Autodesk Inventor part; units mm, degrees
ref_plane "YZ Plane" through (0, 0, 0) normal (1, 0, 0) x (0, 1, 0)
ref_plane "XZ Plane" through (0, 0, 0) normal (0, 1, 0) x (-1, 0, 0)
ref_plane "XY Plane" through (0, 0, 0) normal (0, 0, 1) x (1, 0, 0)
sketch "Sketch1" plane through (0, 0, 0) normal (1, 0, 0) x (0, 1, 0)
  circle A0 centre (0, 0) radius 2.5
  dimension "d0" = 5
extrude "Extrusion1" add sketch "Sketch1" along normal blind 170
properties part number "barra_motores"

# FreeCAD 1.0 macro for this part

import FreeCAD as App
import Part
import Sketcher

V = App.Vector

doc = App.newDocument("Part")
params = doc.addObject("Spreadsheet::Sheet", "Params")
for row, (alias, value) in enumerate([
    ("sketch1_diameter", "5 mm"),
    ("pad1_length", "170 mm"),
], start=1):
    params.set(f"A{row}", alias)
    params.set(f"B{row}", "=" + value)
    params.setAlias(f"B{row}", alias)

body = doc.addObject("PartDesign::Body", "Body")

# Sketch on YZ plane
sketch1 = body.newObject("Sketcher::SketchObject", "Sketch")
sketch1.AttachmentSupport = (doc.getObject("YZ_Plane"), [""])
sketch1.MapMode = "FlatFace"
sketch1.addGeometry(Part.Circle(V(0, 0, 0), V(0, 0, 1), 2.5), False)
sketch1.addConstraint([
    Sketcher.Constraint("Coincident", 0, 3, -1, 1),
    Sketcher.Constraint("Diameter", 0, 5.0),
])
sketch1.setExpression("Constraints[1]", "Params.sketch1_diameter")
pad1 = body.newObject("PartDesign::Pad", "Pad")
pad1.Profile = sketch1
pad1.setExpression("Length", "Params.pad1_length")

doc.recompute()
